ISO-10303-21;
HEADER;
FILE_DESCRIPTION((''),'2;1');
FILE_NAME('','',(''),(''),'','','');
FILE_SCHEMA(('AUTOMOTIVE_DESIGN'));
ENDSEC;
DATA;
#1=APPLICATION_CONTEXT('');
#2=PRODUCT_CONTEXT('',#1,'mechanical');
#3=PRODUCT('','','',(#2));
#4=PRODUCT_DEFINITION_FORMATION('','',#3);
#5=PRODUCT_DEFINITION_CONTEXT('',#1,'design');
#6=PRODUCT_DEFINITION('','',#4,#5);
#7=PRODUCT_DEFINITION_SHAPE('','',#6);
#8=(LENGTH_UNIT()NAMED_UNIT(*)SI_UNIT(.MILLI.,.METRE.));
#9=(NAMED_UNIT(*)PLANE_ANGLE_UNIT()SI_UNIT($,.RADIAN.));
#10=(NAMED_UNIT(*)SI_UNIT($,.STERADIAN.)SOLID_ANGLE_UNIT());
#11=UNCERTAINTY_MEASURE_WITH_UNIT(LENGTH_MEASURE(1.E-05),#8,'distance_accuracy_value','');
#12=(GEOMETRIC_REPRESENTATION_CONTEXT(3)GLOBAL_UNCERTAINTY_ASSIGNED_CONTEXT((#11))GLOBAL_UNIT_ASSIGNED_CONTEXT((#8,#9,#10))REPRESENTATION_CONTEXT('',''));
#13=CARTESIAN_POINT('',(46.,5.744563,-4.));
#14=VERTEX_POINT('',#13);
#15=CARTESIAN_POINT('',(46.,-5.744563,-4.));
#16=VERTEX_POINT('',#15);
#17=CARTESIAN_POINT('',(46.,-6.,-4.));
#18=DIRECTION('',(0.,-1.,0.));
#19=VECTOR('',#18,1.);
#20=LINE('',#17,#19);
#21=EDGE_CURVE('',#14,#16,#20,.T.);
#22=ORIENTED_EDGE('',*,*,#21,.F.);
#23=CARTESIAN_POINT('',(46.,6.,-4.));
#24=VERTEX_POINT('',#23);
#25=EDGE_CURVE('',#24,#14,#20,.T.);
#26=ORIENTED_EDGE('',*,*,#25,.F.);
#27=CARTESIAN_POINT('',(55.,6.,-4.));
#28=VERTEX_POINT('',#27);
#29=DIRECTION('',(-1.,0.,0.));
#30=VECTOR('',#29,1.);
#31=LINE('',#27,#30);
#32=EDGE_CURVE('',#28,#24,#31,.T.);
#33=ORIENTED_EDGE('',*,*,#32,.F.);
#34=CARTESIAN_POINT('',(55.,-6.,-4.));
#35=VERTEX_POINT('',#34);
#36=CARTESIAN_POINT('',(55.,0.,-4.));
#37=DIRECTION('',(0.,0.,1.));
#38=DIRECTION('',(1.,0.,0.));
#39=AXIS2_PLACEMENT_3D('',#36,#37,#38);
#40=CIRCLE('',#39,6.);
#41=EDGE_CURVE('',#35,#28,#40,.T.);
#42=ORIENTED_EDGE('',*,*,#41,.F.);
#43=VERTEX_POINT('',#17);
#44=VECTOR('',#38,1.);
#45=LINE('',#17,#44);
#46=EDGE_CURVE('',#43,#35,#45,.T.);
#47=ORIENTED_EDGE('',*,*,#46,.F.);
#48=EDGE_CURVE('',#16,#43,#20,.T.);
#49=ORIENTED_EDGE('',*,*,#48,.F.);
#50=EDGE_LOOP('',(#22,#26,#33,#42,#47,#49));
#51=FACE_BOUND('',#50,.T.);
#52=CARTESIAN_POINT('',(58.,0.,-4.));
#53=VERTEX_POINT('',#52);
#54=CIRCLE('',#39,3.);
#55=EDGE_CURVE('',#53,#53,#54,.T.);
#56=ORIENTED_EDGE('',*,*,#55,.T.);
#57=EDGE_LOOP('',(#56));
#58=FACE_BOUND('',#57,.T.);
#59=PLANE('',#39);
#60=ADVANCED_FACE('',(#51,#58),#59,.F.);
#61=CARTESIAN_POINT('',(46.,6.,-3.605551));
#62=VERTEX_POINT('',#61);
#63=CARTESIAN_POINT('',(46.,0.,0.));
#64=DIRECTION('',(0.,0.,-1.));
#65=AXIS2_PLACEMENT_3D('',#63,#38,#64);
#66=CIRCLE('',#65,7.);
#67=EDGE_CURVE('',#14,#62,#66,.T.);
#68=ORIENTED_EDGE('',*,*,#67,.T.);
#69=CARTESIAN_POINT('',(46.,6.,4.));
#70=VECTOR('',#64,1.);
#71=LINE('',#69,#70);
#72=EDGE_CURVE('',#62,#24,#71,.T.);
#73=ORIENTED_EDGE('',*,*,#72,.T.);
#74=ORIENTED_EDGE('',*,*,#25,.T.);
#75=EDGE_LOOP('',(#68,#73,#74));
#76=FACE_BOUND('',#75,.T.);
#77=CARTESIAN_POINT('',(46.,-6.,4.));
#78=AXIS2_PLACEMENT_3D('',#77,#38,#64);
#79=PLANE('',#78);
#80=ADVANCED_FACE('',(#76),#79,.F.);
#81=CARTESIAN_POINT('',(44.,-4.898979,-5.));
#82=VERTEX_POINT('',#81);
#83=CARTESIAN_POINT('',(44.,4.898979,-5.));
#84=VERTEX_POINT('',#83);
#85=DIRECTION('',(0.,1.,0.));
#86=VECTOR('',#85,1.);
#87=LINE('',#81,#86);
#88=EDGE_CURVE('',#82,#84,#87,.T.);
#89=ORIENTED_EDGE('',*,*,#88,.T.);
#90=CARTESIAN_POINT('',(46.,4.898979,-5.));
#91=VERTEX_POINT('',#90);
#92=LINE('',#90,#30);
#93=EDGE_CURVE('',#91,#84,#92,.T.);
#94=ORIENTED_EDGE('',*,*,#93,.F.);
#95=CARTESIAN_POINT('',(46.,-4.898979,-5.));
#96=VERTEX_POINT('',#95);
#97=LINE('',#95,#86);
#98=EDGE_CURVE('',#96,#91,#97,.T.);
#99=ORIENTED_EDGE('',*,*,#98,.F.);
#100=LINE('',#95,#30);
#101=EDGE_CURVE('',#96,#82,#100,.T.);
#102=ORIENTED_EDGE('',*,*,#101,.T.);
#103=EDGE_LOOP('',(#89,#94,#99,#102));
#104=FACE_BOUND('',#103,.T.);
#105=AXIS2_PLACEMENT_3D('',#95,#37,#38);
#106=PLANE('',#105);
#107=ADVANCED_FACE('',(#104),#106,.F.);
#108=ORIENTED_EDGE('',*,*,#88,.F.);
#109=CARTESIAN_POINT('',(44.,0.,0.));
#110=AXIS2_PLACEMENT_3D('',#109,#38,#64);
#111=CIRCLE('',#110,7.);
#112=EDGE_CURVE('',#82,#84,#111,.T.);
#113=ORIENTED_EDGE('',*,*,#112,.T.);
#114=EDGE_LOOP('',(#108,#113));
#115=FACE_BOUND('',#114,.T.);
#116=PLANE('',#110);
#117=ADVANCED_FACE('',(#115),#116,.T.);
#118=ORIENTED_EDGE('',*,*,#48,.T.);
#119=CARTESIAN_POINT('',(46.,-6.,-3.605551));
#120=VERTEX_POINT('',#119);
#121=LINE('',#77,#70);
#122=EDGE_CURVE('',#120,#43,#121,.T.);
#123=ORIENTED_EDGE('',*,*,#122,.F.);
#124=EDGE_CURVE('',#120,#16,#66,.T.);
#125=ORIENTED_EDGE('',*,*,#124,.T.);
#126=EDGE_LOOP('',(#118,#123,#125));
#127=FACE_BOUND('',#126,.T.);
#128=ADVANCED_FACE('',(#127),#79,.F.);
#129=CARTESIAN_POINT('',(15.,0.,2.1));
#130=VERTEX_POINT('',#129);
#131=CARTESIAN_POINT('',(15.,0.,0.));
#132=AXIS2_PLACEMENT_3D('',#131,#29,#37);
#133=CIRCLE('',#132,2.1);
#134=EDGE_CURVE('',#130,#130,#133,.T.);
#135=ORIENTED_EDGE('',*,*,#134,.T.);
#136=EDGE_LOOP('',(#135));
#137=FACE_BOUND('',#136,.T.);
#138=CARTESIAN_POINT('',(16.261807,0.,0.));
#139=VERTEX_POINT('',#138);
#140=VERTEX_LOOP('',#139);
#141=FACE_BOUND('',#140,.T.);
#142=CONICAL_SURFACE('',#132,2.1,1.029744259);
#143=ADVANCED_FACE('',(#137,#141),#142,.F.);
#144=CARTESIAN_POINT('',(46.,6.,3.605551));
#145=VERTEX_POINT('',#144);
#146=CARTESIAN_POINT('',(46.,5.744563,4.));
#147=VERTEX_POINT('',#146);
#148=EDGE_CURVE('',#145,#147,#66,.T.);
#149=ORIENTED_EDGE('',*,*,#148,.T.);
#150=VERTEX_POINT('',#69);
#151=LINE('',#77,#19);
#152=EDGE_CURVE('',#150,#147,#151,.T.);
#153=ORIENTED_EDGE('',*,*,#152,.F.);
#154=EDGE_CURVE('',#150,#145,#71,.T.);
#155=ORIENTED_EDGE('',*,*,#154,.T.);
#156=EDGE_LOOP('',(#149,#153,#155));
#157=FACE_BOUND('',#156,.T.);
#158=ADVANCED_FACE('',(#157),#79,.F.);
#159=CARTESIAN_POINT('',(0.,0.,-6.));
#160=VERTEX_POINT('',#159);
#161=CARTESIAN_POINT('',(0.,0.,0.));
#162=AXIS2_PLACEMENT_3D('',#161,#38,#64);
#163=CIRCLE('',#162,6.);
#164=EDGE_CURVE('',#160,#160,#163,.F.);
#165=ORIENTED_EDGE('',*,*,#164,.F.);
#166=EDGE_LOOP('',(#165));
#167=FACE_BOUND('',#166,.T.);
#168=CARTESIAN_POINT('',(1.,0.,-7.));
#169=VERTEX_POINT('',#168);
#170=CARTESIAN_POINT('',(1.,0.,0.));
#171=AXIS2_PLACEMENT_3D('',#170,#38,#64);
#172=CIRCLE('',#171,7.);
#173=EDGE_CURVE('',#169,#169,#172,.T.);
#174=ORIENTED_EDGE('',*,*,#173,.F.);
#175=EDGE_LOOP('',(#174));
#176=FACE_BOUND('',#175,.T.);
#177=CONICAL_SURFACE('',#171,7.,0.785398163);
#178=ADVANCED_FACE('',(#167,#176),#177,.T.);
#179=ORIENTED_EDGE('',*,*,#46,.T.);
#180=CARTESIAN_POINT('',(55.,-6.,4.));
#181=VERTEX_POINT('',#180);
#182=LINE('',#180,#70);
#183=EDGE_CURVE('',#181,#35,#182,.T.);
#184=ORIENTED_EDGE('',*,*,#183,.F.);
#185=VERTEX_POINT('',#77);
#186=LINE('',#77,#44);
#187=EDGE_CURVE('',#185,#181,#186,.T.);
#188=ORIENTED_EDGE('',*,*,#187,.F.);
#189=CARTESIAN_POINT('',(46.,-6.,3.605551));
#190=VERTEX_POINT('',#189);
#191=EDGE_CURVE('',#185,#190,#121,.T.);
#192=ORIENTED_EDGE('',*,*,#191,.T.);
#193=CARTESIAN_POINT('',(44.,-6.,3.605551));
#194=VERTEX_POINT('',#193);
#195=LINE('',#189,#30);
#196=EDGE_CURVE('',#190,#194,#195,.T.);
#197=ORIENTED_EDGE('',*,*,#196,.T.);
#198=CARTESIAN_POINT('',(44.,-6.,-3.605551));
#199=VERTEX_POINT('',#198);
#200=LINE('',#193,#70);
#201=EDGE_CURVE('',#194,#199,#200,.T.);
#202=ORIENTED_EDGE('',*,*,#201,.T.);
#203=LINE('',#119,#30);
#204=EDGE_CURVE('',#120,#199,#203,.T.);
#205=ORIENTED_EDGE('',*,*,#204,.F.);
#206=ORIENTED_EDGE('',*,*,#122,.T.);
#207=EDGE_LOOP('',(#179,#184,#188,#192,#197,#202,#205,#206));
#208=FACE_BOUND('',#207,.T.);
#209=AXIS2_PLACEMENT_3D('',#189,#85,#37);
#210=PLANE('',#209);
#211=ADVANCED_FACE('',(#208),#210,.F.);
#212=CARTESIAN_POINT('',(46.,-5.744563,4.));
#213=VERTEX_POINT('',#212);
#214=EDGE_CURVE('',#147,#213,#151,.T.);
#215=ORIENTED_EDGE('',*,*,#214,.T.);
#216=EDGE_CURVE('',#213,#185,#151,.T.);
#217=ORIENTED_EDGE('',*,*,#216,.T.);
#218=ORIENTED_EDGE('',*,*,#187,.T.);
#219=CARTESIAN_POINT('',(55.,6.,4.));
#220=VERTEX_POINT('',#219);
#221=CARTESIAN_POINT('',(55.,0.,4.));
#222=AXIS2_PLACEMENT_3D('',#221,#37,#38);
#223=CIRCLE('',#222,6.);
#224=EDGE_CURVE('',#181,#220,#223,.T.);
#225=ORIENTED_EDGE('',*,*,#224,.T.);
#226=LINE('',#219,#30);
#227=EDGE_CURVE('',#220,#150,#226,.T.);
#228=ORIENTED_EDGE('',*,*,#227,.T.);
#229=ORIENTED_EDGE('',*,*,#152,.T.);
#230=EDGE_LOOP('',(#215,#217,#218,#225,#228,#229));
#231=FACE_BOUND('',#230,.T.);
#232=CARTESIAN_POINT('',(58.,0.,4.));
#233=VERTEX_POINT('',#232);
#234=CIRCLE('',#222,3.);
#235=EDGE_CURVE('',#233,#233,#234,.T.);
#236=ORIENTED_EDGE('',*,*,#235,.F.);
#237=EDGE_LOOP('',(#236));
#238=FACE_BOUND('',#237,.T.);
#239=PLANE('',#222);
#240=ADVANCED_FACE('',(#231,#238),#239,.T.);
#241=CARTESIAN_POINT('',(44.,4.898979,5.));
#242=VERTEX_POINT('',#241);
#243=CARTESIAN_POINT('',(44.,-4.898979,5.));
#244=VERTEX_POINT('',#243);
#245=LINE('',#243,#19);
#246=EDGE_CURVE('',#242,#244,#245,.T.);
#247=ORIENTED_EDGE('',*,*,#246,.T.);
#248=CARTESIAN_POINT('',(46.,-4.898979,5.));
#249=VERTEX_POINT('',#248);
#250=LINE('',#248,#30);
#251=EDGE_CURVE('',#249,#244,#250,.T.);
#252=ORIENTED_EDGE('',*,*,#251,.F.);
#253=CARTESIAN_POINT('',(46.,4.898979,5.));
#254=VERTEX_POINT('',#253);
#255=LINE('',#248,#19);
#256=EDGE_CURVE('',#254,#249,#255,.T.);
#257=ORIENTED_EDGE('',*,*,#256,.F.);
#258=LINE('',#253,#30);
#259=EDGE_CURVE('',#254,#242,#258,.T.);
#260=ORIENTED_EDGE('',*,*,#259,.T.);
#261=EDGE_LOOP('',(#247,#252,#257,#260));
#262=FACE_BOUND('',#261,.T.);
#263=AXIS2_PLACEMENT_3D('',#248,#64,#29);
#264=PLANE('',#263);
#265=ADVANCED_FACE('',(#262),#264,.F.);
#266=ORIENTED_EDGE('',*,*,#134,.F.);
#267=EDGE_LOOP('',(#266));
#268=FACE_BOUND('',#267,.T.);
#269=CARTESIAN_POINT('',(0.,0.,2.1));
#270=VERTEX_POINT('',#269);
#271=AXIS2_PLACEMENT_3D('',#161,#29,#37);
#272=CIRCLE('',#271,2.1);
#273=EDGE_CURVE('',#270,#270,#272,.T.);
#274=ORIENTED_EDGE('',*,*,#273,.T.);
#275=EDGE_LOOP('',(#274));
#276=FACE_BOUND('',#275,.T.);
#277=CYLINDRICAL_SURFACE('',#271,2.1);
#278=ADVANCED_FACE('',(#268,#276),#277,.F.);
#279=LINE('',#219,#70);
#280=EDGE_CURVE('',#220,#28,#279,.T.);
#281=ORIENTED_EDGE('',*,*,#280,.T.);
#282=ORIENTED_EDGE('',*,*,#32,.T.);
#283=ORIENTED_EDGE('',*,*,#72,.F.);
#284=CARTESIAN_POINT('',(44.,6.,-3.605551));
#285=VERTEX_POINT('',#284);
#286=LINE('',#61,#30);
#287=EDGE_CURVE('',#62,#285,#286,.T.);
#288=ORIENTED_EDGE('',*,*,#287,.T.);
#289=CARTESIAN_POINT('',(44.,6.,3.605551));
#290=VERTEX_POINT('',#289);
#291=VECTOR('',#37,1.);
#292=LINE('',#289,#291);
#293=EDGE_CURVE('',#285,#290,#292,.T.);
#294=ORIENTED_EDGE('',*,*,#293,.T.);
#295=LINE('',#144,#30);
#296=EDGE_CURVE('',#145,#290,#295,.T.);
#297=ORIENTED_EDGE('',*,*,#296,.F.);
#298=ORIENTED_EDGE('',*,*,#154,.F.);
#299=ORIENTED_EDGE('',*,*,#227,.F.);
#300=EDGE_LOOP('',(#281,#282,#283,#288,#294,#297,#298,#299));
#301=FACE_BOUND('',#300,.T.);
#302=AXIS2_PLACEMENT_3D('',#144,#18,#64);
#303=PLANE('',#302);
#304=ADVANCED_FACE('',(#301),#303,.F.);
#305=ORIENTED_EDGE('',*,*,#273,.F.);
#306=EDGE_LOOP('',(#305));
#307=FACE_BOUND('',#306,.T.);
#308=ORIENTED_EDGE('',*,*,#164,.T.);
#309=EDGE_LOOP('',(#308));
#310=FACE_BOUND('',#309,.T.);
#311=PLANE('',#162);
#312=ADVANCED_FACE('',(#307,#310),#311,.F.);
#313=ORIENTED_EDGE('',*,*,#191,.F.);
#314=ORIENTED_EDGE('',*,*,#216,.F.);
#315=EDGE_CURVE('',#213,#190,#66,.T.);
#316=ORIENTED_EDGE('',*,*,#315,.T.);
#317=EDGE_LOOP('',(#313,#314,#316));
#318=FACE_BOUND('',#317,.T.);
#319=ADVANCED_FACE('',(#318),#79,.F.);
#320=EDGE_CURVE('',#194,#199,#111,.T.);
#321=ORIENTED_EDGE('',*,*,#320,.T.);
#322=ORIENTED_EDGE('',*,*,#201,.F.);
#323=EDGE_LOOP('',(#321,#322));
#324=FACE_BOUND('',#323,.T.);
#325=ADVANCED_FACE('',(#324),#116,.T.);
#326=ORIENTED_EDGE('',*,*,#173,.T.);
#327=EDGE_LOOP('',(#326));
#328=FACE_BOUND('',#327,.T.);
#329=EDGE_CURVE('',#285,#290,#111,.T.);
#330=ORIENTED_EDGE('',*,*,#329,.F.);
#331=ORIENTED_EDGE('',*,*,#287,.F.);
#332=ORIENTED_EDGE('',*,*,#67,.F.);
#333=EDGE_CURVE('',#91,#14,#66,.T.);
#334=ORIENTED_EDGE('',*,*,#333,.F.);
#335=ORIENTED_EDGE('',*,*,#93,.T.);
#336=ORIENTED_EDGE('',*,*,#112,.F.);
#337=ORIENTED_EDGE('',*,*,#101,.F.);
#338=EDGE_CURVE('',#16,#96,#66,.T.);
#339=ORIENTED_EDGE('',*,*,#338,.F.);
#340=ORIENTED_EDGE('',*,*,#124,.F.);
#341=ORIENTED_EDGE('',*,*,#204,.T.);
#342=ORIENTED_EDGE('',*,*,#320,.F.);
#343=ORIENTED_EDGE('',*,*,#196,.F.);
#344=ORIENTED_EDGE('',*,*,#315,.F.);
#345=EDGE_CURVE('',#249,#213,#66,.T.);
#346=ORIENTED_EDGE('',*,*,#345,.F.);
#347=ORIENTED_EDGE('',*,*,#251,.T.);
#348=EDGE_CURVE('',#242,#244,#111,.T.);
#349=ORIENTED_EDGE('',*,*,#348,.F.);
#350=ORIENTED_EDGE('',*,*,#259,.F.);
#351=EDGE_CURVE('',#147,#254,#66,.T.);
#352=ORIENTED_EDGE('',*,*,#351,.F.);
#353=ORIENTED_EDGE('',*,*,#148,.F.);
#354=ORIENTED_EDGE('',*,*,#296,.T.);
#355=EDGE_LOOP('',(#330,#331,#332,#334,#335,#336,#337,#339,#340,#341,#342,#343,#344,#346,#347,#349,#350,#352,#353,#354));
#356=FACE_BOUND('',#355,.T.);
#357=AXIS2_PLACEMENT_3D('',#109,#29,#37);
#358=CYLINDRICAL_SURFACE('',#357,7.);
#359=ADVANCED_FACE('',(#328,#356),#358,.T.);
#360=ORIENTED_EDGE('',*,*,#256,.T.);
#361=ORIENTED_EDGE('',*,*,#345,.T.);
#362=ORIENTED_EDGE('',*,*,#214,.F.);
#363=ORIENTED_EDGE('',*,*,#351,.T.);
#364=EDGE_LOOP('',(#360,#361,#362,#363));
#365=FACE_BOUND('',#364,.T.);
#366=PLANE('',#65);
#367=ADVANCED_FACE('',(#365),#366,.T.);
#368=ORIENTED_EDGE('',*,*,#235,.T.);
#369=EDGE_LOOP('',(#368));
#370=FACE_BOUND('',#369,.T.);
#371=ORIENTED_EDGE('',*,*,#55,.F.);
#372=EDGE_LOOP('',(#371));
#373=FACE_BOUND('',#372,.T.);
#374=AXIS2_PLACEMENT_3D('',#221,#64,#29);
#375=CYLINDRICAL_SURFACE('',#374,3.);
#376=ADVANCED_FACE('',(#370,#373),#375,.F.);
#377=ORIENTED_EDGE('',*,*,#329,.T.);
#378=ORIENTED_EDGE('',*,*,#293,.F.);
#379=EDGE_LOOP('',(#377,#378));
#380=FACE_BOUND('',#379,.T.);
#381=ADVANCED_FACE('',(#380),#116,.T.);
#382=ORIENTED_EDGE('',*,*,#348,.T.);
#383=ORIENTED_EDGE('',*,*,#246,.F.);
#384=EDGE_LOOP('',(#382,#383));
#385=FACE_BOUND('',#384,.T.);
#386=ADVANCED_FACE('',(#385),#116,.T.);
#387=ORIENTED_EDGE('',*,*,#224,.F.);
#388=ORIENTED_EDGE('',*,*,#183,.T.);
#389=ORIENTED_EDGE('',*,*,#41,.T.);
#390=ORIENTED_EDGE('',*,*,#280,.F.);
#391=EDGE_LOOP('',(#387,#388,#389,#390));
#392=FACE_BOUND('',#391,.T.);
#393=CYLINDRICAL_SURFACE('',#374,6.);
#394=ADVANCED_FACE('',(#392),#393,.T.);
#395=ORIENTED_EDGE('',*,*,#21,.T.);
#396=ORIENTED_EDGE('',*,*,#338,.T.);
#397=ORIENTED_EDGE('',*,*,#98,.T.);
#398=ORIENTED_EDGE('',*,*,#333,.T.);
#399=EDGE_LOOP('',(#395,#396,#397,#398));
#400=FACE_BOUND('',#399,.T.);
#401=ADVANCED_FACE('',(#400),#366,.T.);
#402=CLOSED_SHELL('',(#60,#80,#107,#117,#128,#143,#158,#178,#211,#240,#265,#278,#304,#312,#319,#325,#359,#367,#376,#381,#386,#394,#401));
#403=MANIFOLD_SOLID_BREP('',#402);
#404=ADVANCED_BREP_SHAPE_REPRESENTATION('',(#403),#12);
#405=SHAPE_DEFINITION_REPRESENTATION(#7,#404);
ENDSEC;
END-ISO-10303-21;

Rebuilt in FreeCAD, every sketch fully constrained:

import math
import FreeCAD as App
import Part
import Sketcher
Q = App.Units.Quantity


def edges_at(feature, points):
    """Names of the edges that pass closest to the given points."""
    edges = feature.Shape.Edges
    near = lambda p: min(range(len(edges)), key=lambda i: edges[i].distToShape(Part.Vertex(*p))[0])
    return sorted({f"Edge{near(p) + 1}" for p in points})

doc = App.newDocument("Part")
body = doc.addObject("PartDesign::Body", "Body")

sketch1 = body.newObject("Sketcher::SketchObject", "Sketch")
sketch1.AttachmentSupport = (doc.getObject("YZ_Plane"), [""])
sketch1.MapMode = "FlatFace"
sketch1.addGeometry(Part.Circle(App.Vector(0, 0, 0), App.Vector(0, 0, 1), 7), False)
sketch1.addConstraint(Sketcher.Constraint("Coincident", 0, 3, -1, 1))
sketch1.addConstraint(Sketcher.Constraint("Diameter", 0, Q("14 mm")))
pad1 = body.newObject("PartDesign::Pad", "Pad")
pad1.Profile = sketch1
pad1.Length = 44

sketch2 = body.newObject("Sketcher::SketchObject", "Sketch001")
sketch2.AttachmentSupport = (doc.getObject("YZ_Plane"), [""])
sketch2.MapMode = "FlatFace"
sketch2.AttachmentOffset = App.Placement(App.Vector(0, 0, 44), App.Rotation())
sketch2.addGeometry(Part.LineSegment(App.Vector(4.9, 5, 0), App.Vector(-4.9, 5, 0)), False)
sketch2.addGeometry(Part.ArcOfCircle(Part.Circle(App.Vector(0, 0, 0), App.Vector(0, 0, 1), 7), math.radians(134.42), math.radians(149)), False)
sketch2.addGeometry(Part.LineSegment(App.Vector(-6, 3.6, 0), App.Vector(-6, -3.6, 0)), False)
sketch2.addGeometry(Part.ArcOfCircle(Part.Circle(App.Vector(0, 0, 0), App.Vector(0, 0, 1), 7), math.radians(-149), math.radians(-134.42)), False)
sketch2.addGeometry(Part.LineSegment(App.Vector(-4.9, -5, 0), App.Vector(4.9, -5, 0)), False)
sketch2.addGeometry(Part.ArcOfCircle(Part.Circle(App.Vector(0, 0, 0), App.Vector(0, 0, 1), 7), math.radians(-45.58), math.radians(-31)), False)
sketch2.addGeometry(Part.LineSegment(App.Vector(6, -3.6, 0), App.Vector(6, 3.6, 0)), False)
sketch2.addGeometry(Part.ArcOfCircle(Part.Circle(App.Vector(0, 0, 0), App.Vector(0, 0, 1), 7), math.radians(31), math.radians(45.58)), False)
sketch2.addConstraint(Sketcher.Constraint("Coincident", 0, 2, 1, 1))
sketch2.addConstraint(Sketcher.Constraint("Coincident", 1, 2, 2, 1))
sketch2.addConstraint(Sketcher.Constraint("Coincident", 2, 2, 3, 1))
sketch2.addConstraint(Sketcher.Constraint("Coincident", 3, 2, 4, 1))
sketch2.addConstraint(Sketcher.Constraint("Coincident", 4, 2, 5, 1))
sketch2.addConstraint(Sketcher.Constraint("Coincident", 5, 2, 6, 1))
sketch2.addConstraint(Sketcher.Constraint("Coincident", 6, 2, 7, 1))
sketch2.addConstraint(Sketcher.Constraint("Coincident", 7, 2, 0, 1))
sketch2.addConstraint(Sketcher.Constraint("Horizontal", 0))
sketch2.addConstraint(Sketcher.Constraint("Vertical", 2))
sketch2.addConstraint(Sketcher.Constraint("Horizontal", 4))
sketch2.addConstraint(Sketcher.Constraint("Vertical", 6))
sketch2.addConstraint(Sketcher.Constraint("Coincident", 1, 3, -1, 1))
sketch2.addConstraint(Sketcher.Constraint("Coincident", 3, 3, -1, 1))
sketch2.addConstraint(Sketcher.Constraint("Coincident", 5, 3, -1, 1))
sketch2.addConstraint(Sketcher.Constraint("Coincident", 7, 3, -1, 1))
sketch2.addConstraint(Sketcher.Constraint("Equal", 1, 3))
sketch2.addConstraint(Sketcher.Constraint("Equal", 3, 5))
sketch2.addConstraint(Sketcher.Constraint("Equal", 5, 7))
sketch2.addConstraint(Sketcher.Constraint("Horizontal", 2, 2, 5, 2))
sketch2.addConstraint(Sketcher.Constraint("Vertical", 0, 2, 3, 2))
sketch2.addConstraint(Sketcher.Constraint("Radius", 1, Q("7 mm")))
sketch2.addConstraint(Sketcher.Constraint("DistanceY", -1, 1, 0, 2, Q("5 mm")))
sketch2.addConstraint(Sketcher.Constraint("DistanceX", 1, 2, -1, 1, Q("6 mm")))
pad2 = body.newObject("PartDesign::Pad", "Pad001")
pad2.Profile = sketch2
pad2.Length = 2

sketch3 = body.newObject("Sketcher::SketchObject", "Sketch002")
sketch3.AttachmentSupport = (doc.getObject("XY_Plane"), [""])
sketch3.MapMode = "FlatFace"
sketch3.addGeometry(Part.LineSegment(App.Vector(46, 6, 0), App.Vector(46, -6, 0)), False)
sketch3.addGeometry(Part.LineSegment(App.Vector(46, -6, 0), App.Vector(55, -6, 0)), False)
sketch3.addGeometry(Part.ArcOfCircle(Part.Circle(App.Vector(55, 0, 0), App.Vector(0, 0, 1), 6), math.radians(-90), math.radians(90)), False)
sketch3.addGeometry(Part.LineSegment(App.Vector(55, 6, 0), App.Vector(46, 6, 0)), False)
sketch3.addGeometry(Part.Circle(App.Vector(55, 0, 0), App.Vector(0, 0, 1), 3), False)
sketch3.addConstraint(Sketcher.Constraint("Coincident", 0, 2, 1, 1))
sketch3.addConstraint(Sketcher.Constraint("Tangent", 1, 2, 2, 1))
sketch3.addConstraint(Sketcher.Constraint("Tangent", 2, 2, 3, 1))
sketch3.addConstraint(Sketcher.Constraint("Coincident", 3, 2, 0, 1))
sketch3.addConstraint(Sketcher.Constraint("Vertical", 0))
sketch3.addConstraint(Sketcher.Constraint("Horizontal", 1))
sketch3.addConstraint(Sketcher.Constraint("Horizontal", 3))
sketch3.addConstraint(Sketcher.Constraint("Coincident", 4, 3, 2, 3))
sketch3.addConstraint(Sketcher.Constraint("PointOnObject", 2, 3, -1))
sketch3.addConstraint(Sketcher.Constraint("Diameter", 4, Q("6 mm")))
sketch3.addConstraint(Sketcher.Constraint("Radius", 2, Q("6 mm")))
sketch3.addConstraint(Sketcher.Constraint("DistanceX", 1, 1, 1, 2, Q("9 mm")))
sketch3.addConstraint(Sketcher.Constraint("DistanceX", -1, 1, 2, 3, Q("55 mm")))
pad3 = body.newObject("PartDesign::Pad", "Pad002")
pad3.Profile = sketch3
pad3.Length = 8
pad3.Midplane = True

sketch4 = body.newObject("Sketcher::SketchObject", "Sketch003")
sketch4.AttachmentSupport = (doc.getObject("YZ_Plane"), [""])
sketch4.MapMode = "FlatFace"
sketch4.addGeometry(Part.Circle(App.Vector(0, 0, 0), App.Vector(0, 0, 1), 2.1), False)
sketch4.addConstraint(Sketcher.Constraint("Coincident", 0, 3, -1, 1))
sketch4.addConstraint(Sketcher.Constraint("Diameter", 0, Q("4.2 mm")))
doc.recompute()
hole = body.newObject("PartDesign::Hole", "Hole")
hole.Profile = sketch4
hole.ThreadType = "None"
hole.Diameter = 4.2
hole.DepthType = "Dimension"
hole.Depth = 15
hole.DrillPoint = "Angled"
hole.DrillPointAngle = 118
hole.Reversed = True
doc.recompute()

chamfer = body.newObject("PartDesign::Chamfer", "Chamfer")
chamfer.Base = (hole, edges_at(hole, [(0, 0, 7)]))
chamfer.Size = 1

doc.recompute()
